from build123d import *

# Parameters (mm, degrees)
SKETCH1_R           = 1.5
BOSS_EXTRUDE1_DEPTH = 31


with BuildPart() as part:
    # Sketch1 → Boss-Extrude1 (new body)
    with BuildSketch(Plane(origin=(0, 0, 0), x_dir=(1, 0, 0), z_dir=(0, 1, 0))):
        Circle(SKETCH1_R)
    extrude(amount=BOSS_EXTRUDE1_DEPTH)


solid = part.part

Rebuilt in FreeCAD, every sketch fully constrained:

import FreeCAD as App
import Part
import Sketcher
Q = App.Units.Quantity

doc = App.newDocument("Part")
params = doc.addObject("Spreadsheet::Sheet", "Params")
for row, (alias, value) in enumerate([
    ("sketch1_diameter", "3 mm"),
    ("pad1_length", "31 mm"),
], start=1):
    params.set(f"A{row}", alias)
    params.set(f"B{row}", "=" + value)
    params.setAlias(f"B{row}", alias)

body = doc.addObject("PartDesign::Body", "Body")

sketch1 = body.newObject("Sketcher::SketchObject", "Sketch")
sketch1.AttachmentSupport = (doc.getObject("XZ_Plane"), [""])
sketch1.MapMode = "FlatFace"
sketch1.addGeometry(Part.Circle(App.Vector(0, 0, 0), App.Vector(0, 0, 1), 1.5), False)
sketch1.addConstraint([
    Sketcher.Constraint("Coincident", 0, 3, -1, 1),
    Sketcher.Constraint("Diameter", 0, Q("3 mm")),
])
sketch1.setExpression("Constraints[1]", "Params.sketch1_diameter")
pad1 = body.newObject("PartDesign::Pad", "Pad")
pad1.Profile = sketch1
pad1.setExpression("Length", "Params.pad1_length")
pad1.Reversed = True

doc.recompute()
